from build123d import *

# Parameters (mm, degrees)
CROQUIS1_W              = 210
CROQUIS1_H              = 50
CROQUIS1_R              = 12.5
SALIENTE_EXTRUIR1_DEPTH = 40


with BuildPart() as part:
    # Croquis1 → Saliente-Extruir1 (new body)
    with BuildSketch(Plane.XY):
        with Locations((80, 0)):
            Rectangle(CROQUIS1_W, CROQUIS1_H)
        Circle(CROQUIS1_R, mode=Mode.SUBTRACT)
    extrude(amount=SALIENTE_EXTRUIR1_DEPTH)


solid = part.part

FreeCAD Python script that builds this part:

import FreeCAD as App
import Part
import Sketcher
Q = App.Units.Quantity


def add_polygon(sketch, points):
    """Adds a closed chain of lines whose ends are joined by coincident constraints."""
    first, n = sketch.GeometryCount, len(points)
    for a, b in zip(points, points[1:] + points[:1]):
        sketch.addGeometry(Part.LineSegment(App.Vector(*a, 0), App.Vector(*b, 0)), False)
    for i in range(n):
        sketch.addConstraint(Sketcher.Constraint("Coincident", first + i, 2, first + (i + 1) % n, 1))

doc = App.newDocument("Part")
body = doc.addObject("PartDesign::Body", "Body")

sketch1 = body.newObject("Sketcher::SketchObject", "Sketch")
sketch1.AttachmentSupport = (doc.getObject("XY_Plane"), [""])
sketch1.MapMode = "FlatFace"
add_polygon(sketch1, [(-25, 25), (-25, -25), (185, -25), (185, 25)])
sketch1.addGeometry(Part.Circle(App.Vector(0, 0, 0), App.Vector(0, 0, 1), 12), False)
sketch1.addConstraint([
    Sketcher.Constraint("Vertical", 0),
    Sketcher.Constraint("Horizontal", 1),
    Sketcher.Constraint("Vertical", 2),
    Sketcher.Constraint("Horizontal", 3),
    Sketcher.Constraint("Coincident", 4, 3, -1, 1),
    Sketcher.Constraint("Diameter", 4, Q("25 mm")),
    Sketcher.Constraint("DistanceX", 1, 1, 1, 2, Q("210 mm")),
    Sketcher.Constraint("DistanceY", 0, 2, 0, 1, Q("50 mm")),
    Sketcher.Constraint("DistanceX", 0, 2, -1, 1, Q("25 mm")),
    Sketcher.Constraint("DistanceY", 0, 2, -1, 1, Q("25 mm")),
])
pad1 = body.newObject("PartDesign::Pad", "Pad")
pad1.Profile = sketch1
pad1.Length = 40

doc.recompute()
